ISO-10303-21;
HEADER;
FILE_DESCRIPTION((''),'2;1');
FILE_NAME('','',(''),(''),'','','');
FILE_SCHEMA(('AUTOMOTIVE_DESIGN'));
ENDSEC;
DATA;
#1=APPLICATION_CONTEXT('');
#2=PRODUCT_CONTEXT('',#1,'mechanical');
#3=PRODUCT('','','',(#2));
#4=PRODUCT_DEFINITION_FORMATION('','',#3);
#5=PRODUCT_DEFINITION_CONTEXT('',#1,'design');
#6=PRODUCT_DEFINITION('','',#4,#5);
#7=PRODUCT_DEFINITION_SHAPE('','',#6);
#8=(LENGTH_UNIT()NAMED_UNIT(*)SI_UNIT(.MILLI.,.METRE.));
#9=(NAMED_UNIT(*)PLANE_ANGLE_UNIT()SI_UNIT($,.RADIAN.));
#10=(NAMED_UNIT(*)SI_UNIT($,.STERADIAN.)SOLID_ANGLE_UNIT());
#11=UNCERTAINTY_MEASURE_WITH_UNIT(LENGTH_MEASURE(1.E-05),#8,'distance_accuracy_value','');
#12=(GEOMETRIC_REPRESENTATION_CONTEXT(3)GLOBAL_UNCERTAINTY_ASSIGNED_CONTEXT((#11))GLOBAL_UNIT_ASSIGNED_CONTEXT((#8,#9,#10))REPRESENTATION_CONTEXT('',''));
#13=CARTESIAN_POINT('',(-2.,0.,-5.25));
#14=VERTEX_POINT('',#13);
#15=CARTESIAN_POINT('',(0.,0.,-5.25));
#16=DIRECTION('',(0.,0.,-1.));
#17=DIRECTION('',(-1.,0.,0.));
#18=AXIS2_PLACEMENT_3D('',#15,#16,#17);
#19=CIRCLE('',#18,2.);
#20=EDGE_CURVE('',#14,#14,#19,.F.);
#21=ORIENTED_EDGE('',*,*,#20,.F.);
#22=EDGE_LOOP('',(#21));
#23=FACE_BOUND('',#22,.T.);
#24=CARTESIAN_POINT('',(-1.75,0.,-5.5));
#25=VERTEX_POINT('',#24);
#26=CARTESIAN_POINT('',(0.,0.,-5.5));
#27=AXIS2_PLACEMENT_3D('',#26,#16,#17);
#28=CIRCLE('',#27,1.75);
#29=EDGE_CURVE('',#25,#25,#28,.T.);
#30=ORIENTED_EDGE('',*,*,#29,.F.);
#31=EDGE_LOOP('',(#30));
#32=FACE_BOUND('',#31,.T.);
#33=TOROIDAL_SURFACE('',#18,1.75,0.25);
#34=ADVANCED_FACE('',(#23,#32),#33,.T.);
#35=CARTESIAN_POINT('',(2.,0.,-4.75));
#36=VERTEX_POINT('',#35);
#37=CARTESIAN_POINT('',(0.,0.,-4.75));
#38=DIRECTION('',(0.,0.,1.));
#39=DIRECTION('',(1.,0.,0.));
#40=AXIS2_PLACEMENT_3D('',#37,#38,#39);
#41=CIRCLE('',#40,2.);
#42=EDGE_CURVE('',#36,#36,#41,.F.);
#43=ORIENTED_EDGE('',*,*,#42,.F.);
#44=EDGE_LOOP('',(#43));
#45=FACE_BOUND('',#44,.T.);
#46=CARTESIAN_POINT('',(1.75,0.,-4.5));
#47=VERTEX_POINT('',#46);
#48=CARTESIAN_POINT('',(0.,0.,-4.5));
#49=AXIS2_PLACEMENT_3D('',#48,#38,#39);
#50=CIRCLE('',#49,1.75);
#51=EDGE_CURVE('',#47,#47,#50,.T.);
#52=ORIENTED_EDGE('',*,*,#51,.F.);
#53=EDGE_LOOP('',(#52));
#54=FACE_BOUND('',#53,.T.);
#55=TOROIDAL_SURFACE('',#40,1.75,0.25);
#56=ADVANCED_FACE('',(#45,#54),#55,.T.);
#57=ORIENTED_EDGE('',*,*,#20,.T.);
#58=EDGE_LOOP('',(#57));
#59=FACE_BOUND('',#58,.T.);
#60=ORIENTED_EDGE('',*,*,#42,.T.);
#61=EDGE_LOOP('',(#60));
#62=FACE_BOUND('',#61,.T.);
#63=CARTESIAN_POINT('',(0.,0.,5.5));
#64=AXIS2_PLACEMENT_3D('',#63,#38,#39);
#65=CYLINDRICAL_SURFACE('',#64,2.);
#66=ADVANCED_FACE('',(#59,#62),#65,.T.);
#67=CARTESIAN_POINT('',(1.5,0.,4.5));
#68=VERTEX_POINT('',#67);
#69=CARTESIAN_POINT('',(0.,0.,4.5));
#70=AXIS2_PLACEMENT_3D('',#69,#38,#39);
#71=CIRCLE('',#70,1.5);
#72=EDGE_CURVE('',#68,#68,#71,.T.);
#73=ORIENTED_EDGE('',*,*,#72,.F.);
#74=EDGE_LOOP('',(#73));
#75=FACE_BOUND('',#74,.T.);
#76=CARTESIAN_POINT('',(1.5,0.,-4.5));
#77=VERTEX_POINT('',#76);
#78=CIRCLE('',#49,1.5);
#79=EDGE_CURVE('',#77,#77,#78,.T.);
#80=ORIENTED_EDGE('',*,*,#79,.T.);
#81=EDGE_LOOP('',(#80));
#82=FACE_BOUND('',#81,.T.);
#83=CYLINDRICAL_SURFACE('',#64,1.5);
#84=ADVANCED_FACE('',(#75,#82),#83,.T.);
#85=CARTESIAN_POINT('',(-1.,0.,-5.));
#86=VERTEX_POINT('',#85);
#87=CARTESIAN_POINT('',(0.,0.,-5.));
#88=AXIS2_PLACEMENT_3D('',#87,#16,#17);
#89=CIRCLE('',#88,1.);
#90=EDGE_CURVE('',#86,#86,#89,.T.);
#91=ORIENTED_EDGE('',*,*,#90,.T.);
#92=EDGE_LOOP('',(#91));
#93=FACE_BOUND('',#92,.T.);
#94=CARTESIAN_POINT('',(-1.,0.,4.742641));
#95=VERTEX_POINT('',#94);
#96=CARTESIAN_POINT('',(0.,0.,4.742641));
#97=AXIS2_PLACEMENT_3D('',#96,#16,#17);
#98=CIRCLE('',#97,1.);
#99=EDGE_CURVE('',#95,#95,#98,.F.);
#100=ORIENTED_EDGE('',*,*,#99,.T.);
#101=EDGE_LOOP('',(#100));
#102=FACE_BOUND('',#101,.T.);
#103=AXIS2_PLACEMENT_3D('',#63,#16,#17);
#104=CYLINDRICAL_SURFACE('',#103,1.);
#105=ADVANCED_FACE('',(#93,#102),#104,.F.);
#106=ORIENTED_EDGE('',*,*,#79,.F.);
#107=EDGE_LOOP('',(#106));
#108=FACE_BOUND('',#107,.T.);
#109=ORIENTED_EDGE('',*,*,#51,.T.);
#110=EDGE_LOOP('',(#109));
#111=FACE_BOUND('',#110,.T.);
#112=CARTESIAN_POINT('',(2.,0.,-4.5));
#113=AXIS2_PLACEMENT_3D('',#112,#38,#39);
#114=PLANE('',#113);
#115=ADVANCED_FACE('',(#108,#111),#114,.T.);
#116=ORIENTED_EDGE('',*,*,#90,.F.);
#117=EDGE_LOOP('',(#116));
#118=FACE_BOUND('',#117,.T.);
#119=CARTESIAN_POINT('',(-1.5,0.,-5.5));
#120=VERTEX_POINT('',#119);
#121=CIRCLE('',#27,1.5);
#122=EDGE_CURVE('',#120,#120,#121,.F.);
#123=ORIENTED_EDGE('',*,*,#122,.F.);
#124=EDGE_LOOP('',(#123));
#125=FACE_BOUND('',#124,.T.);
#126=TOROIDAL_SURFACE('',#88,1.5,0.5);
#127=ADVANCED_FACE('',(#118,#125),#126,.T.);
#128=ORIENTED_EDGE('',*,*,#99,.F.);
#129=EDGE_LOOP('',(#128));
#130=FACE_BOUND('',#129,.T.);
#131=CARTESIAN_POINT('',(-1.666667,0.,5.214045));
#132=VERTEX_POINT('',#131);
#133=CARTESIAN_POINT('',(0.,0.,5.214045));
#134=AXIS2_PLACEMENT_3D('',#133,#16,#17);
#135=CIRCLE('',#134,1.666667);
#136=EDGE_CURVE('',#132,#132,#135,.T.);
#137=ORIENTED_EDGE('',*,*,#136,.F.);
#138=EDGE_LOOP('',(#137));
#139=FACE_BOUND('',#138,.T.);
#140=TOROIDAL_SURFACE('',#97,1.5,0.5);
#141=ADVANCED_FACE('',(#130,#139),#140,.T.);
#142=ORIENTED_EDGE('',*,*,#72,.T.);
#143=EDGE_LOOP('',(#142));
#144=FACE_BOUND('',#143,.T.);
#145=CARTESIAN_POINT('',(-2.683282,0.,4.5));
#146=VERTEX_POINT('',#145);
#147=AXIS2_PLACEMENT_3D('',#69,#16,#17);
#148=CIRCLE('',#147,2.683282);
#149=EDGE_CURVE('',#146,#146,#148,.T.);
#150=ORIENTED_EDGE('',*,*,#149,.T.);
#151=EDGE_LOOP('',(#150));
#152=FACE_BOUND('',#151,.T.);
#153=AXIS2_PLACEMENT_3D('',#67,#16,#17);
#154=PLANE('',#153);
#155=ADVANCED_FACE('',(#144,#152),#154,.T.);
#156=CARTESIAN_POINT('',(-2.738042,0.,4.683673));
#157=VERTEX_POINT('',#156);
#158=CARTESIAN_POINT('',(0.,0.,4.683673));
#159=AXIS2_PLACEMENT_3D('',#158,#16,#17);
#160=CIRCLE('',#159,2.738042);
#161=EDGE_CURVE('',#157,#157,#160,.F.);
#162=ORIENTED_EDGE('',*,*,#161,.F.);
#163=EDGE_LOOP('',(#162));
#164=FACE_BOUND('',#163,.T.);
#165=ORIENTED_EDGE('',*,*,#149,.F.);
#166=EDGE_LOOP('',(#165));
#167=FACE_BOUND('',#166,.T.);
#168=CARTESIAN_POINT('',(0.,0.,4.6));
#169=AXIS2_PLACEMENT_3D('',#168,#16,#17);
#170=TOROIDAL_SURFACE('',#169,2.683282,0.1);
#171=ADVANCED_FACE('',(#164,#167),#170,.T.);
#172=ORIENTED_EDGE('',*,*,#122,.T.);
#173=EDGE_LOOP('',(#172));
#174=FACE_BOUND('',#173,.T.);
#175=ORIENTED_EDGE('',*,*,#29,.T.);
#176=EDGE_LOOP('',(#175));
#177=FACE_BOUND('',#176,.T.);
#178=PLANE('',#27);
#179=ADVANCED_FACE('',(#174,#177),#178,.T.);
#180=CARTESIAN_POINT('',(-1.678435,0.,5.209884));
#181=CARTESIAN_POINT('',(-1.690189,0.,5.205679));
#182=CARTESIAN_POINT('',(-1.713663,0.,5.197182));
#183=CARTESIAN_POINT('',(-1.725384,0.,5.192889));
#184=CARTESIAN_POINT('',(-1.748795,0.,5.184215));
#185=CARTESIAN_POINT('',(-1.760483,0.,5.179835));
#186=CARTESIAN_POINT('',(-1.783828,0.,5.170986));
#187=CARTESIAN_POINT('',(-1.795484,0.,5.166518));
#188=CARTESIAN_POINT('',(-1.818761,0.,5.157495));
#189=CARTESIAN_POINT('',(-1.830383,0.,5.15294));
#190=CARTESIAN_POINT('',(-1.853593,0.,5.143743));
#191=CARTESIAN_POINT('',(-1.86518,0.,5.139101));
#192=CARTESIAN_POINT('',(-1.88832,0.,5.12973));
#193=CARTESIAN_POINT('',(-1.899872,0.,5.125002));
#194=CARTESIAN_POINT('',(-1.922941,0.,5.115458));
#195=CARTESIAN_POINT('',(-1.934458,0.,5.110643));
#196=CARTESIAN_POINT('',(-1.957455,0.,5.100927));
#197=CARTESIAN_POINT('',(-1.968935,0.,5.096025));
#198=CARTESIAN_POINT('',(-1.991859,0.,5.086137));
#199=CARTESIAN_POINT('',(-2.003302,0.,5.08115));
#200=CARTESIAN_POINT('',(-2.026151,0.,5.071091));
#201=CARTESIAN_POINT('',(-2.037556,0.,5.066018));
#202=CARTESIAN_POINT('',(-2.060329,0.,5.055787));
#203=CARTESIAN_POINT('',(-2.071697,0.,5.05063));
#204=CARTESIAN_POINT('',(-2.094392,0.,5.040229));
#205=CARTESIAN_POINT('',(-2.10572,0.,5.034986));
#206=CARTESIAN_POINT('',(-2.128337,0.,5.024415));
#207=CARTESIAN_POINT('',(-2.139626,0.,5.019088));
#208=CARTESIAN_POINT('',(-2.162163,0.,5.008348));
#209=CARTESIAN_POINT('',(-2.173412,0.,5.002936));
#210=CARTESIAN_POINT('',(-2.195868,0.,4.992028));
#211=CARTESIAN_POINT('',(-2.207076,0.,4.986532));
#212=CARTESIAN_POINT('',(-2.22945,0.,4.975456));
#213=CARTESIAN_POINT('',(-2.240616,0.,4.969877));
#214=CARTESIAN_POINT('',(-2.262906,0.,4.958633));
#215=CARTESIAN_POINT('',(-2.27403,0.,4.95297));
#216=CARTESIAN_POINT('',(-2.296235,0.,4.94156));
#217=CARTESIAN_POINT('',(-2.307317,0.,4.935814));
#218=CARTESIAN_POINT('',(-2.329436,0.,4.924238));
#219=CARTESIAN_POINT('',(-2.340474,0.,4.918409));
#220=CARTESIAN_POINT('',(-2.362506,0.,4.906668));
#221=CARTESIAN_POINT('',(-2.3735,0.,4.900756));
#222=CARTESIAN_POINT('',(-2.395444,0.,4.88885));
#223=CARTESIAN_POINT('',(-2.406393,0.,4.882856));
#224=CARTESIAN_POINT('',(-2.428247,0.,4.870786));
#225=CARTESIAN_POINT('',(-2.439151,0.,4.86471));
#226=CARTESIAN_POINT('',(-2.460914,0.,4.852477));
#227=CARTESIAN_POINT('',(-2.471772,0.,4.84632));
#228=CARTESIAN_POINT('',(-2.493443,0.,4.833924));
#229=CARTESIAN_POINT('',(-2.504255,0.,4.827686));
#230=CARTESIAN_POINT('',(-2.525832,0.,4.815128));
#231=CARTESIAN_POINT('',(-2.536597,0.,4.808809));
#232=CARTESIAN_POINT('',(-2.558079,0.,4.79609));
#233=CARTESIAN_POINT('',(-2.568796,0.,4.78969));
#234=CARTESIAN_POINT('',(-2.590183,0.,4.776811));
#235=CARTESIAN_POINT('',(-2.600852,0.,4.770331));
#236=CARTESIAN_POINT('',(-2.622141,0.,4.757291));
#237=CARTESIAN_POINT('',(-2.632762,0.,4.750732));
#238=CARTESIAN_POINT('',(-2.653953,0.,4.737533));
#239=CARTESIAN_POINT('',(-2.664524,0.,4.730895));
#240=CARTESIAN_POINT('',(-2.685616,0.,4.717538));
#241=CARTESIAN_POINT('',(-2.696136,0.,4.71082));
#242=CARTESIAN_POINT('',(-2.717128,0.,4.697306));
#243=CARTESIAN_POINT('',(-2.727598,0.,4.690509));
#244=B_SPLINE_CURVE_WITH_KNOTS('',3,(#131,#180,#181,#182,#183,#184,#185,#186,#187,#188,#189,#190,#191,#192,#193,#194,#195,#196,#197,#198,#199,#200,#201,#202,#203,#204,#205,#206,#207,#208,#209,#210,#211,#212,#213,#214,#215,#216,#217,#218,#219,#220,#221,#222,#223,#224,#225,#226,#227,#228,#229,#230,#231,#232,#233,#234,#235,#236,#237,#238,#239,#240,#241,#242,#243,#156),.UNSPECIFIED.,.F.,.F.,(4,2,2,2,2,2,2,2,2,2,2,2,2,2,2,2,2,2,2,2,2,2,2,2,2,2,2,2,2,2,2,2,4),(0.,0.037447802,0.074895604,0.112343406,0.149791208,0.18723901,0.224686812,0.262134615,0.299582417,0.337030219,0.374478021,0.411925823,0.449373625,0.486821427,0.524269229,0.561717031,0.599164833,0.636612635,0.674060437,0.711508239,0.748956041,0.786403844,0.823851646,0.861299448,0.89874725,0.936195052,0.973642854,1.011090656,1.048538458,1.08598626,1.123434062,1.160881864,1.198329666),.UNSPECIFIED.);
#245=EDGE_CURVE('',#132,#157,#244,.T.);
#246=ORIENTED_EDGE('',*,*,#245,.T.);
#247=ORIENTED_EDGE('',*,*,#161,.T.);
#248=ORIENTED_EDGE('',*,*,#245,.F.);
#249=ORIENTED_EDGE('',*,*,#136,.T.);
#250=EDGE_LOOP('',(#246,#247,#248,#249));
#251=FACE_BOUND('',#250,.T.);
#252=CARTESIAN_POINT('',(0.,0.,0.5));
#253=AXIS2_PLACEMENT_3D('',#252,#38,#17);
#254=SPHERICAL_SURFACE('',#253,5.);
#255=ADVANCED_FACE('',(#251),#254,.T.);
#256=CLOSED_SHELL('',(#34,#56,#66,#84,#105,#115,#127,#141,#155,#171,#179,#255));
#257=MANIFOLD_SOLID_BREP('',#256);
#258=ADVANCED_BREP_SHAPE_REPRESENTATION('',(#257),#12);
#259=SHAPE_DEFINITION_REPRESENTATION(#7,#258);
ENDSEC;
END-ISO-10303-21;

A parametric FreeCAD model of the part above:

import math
import FreeCAD as App
import Part
import Sketcher

V = App.Vector
Q = App.Units.Quantity


def edges_at(feature, points):
    """Names of the edges that pass closest to the given points."""
    edges = feature.Shape.Edges
    near = lambda p: min(range(len(edges)), key=lambda i: edges[i].distToShape(Part.Vertex(*p))[0])
    return sorted({f"Edge{near(p) + 1}" for p in points})

doc = App.newDocument("Part")
body = doc.addObject("PartDesign::Body", "Body")

sketch1 = body.newObject("Sketcher::SketchObject", "Sketch")
sketch1.AttachmentSupport = (doc.getObject("XZ_Plane"), [""])
sketch1.MapMode = "FlatFace"
sketch1.addGeometry([
    Part.LineSegment(V(0, -5.5, 0), V(0, 5.5, 0)),
    Part.ArcOfCircle(Part.Circle(V(0, 0.5, 0), V(0, 0, 1), 5), math.radians(53), math.radians(90)),
    Part.LineSegment(V(3, 4.5, 0), V(1.5, 4.5, 0)),
    Part.LineSegment(V(1.5, 4.5, 0), V(1.5, -4.5, 0)),
    Part.LineSegment(V(1.5, -4.5, 0), V(2, -4.5, 0)),
    Part.LineSegment(V(2, -4.5, 0), V(2, -5.5, 0)),
    Part.LineSegment(V(2, -5.5, 0), V(0, -5.5, 0)),
], False)
sketch1.addConstraint([
    Sketcher.Constraint("Coincident", 0, 2, 1, 2),
    Sketcher.Constraint("Coincident", 1, 1, 2, 1),
    Sketcher.Constraint("Coincident", 2, 2, 3, 1),
    Sketcher.Constraint("Coincident", 3, 2, 4, 1),
    Sketcher.Constraint("Coincident", 4, 2, 5, 1),
    Sketcher.Constraint("Coincident", 5, 2, 6, 1),
    Sketcher.Constraint("Coincident", 6, 2, 0, 1),
    Sketcher.Constraint("Vertical", 0),
    Sketcher.Constraint("Horizontal", 2),
    Sketcher.Constraint("Vertical", 3),
    Sketcher.Constraint("Horizontal", 4),
    Sketcher.Constraint("Vertical", 5),
    Sketcher.Constraint("Horizontal", 6),
    Sketcher.Constraint("Symmetric", 0, 2, 6, 2, -1, 1),
    Sketcher.Constraint("PointOnObject", 1, 3, -2),
    Sketcher.Constraint("Radius", 1, Q("5 mm")),
    Sketcher.Constraint("DistanceX", 6, 2, 6, 1, Q("2 mm")),
    Sketcher.Constraint("DistanceY", 0, 1, 0, 2, Q("11 mm")),
    Sketcher.Constraint("DistanceY", 3, 2, 3, 1, Q("9 mm")),
    Sketcher.Constraint("DistanceY", 5, 2, 5, 1, Q("1 mm")),
    Sketcher.Constraint("DistanceX", 2, 2, 2, 1, Q("1.5 mm")),
])
revolution = body.newObject("PartDesign::Revolution", "Revolution")
revolution.Profile = sketch1
revolution.ReferenceAxis = (sketch1, ["V_Axis"])
revolution.Angle = 360

sketch2 = body.newObject("Sketcher::SketchObject", "Sketch001")
sketch2.AttachmentSupport = (doc.getObject("XY_Plane"), [""])
sketch2.MapMode = "FlatFace"
sketch2.AttachmentOffset = App.Placement(V(0, 0, -5.5), App.Rotation())
sketch2.addGeometry(Part.Circle(V(0, 0, 0), V(0, 0, 1), 1), False)
sketch2.addConstraint([
    Sketcher.Constraint("Coincident", 0, 3, -1, 1),
    Sketcher.Constraint("Diameter", 0, Q("2 mm")),
])
pocket1 = body.newObject("PartDesign::Pocket", "Pocket")
pocket1.Profile = sketch2
pocket1.Type = "ThroughAll"
pocket1.Reversed = True
doc.recompute()

fillet = body.newObject("PartDesign::Fillet", "Fillet")
fillet.Base = (pocket1, edges_at(pocket1, [(-2, 0, -4.5), (-2, 0, -5.5)]))
fillet.Radius = 0.25
doc.recompute()

fillet2 = body.newObject("PartDesign::Fillet", "Fillet001")
fillet2.Base = (fillet, edges_at(fillet, [(-3, 0, 4.5)]))
fillet2.Radius = 0.1
doc.recompute()

fillet3 = body.newObject("PartDesign::Fillet", "Fillet002")
fillet3.Base = (fillet2, edges_at(fillet2, [(0, -1, 5.399), (1, 0, -5.5)]))
fillet3.Radius = 0.5

doc.recompute()
